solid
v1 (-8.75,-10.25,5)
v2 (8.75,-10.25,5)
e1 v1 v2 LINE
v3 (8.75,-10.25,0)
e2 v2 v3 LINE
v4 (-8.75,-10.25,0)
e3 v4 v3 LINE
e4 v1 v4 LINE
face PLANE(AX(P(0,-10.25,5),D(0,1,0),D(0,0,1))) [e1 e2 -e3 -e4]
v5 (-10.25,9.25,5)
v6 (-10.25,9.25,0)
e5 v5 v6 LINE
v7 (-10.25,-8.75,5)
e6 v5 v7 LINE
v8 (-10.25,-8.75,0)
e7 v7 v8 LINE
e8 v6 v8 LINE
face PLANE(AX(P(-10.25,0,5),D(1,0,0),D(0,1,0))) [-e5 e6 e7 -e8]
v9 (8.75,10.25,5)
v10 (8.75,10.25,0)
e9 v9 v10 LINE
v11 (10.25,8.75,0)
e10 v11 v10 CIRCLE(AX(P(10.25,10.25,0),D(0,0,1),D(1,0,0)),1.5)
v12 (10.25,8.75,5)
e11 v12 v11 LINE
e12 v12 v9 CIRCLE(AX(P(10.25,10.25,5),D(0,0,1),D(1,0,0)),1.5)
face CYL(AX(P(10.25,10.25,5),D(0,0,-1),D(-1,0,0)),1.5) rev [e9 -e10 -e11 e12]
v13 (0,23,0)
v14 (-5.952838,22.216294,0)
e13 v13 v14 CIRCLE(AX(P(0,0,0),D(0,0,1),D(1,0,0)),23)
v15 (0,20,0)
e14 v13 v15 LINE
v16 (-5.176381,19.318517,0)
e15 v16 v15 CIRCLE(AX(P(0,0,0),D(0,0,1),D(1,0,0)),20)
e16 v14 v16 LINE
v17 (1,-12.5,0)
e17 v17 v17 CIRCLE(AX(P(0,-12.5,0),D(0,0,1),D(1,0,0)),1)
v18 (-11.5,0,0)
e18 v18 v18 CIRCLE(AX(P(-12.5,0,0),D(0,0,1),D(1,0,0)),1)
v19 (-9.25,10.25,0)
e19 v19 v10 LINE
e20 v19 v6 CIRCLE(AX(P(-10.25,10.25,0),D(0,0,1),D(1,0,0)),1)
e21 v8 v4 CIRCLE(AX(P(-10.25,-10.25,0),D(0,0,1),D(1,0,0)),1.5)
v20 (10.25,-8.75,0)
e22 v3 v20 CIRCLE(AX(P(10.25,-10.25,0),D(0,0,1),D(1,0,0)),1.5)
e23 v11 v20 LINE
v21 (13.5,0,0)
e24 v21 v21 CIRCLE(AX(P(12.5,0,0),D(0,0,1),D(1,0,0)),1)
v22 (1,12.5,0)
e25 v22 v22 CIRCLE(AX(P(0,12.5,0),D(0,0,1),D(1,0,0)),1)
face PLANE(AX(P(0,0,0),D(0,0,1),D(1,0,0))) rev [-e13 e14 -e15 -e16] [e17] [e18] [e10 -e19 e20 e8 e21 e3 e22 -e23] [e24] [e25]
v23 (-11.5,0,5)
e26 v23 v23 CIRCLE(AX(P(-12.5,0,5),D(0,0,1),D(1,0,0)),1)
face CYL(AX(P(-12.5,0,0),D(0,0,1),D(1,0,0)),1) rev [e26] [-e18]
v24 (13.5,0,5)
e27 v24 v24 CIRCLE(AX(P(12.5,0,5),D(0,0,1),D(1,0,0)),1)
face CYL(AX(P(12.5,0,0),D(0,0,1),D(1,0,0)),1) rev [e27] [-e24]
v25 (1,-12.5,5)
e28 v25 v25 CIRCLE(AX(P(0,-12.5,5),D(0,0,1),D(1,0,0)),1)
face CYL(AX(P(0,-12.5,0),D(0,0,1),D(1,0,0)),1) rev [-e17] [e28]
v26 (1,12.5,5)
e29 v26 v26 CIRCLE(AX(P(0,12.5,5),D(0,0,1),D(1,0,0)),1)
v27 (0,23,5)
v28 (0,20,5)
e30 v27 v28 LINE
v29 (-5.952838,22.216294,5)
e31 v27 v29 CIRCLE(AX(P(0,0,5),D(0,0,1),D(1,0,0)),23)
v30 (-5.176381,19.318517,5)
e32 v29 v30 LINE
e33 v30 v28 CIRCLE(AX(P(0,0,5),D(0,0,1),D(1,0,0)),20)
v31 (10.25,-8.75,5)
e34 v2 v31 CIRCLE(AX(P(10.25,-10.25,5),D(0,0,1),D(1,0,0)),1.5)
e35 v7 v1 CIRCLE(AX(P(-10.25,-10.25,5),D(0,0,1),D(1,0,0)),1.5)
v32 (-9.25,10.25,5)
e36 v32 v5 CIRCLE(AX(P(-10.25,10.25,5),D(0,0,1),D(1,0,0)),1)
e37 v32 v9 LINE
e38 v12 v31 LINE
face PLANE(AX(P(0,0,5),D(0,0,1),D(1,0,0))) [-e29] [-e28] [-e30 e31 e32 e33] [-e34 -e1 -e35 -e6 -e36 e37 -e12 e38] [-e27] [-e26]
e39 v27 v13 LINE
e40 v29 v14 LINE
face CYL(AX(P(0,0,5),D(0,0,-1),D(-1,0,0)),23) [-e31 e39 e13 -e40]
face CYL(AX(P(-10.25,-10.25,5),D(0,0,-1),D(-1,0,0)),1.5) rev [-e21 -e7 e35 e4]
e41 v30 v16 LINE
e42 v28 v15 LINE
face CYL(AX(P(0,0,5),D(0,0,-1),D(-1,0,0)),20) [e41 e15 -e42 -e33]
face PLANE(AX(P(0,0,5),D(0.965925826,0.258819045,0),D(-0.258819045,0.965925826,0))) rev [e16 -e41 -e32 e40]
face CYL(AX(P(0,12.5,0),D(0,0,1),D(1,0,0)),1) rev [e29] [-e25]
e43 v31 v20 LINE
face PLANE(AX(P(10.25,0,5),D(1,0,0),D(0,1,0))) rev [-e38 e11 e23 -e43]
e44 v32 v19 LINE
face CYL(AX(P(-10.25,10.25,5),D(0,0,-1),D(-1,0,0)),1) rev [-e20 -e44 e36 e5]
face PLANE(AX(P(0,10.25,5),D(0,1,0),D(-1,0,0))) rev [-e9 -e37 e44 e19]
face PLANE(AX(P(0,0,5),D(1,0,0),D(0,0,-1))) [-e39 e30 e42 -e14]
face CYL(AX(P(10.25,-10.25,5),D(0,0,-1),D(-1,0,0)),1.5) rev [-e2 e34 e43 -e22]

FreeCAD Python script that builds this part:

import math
import FreeCAD as App
import Part
import Sketcher
from FreeCAD import Vector
Q = App.Units.Quantity

doc = App.newDocument("Part")
body = doc.addObject("PartDesign::Body", "Body")

sketch1 = body.newObject("Sketcher::SketchObject", "Sketch")
sketch1.AttachmentSupport = (doc.getObject("XY_Plane"), [""])
sketch1.MapMode = "FlatFace"
sketch1.addGeometry([
    Part.ArcOfCircle(Part.Circle(Vector(0, 0, 0), Vector(0, 0, 1), 23), math.radians(90), math.radians(105)),
    Part.LineSegment(Vector(-6, 22.2, 0), Vector(-5.2, 19.3, 0)),
    Part.ArcOfCircle(Part.Circle(Vector(0, 0, 0), Vector(0, 0, 1), 20), math.radians(105), math.radians(450)),
    Part.LineSegment(Vector(0, 20, 0), Vector(0, 23, 0)),
    Part.ArcOfCircle(Part.Circle(Vector(-10.2, 10.2, 0), Vector(0, 0, 1), 1), math.radians(0), math.radians(270)),
    Part.LineSegment(Vector(-9.2, 10.2, 0), Vector(8.8, 10.2, 0)),
    Part.ArcOfCircle(Part.Circle(Vector(10.2, 10.2, 0), Vector(0, 0, 1), 1.5), math.radians(-90), math.radians(180)),
    Part.LineSegment(Vector(10.2, 8.8, 0), Vector(10.2, -8.8, 0)),
    Part.ArcOfCircle(Part.Circle(Vector(10.2, -10.2, 0), Vector(0, 0, 1), 1.5), math.radians(180), math.radians(450)),
    Part.LineSegment(Vector(8.8, -10.2, 0), Vector(-8.8, -10.2, 0)),
    Part.ArcOfCircle(Part.Circle(Vector(-10.2, -10.2, 0), Vector(0, 0, 1), 1.5), math.radians(90), math.radians(360)),
    Part.LineSegment(Vector(-10.2, -8.8, 0), Vector(-10.2, 9.2, 0)),
], False)
sketch1.addConstraint([
    Sketcher.Constraint("Coincident", 0, 2, 1, 1),
    Sketcher.Constraint("Coincident", 1, 2, 2, 1),
    Sketcher.Constraint("Coincident", 2, 2, 3, 1),
    Sketcher.Constraint("Coincident", 3, 2, 0, 1),
    Sketcher.Constraint("Coincident", 4, 1, 5, 1),
    Sketcher.Constraint("Coincident", 5, 2, 6, 2),
    Sketcher.Constraint("Coincident", 6, 1, 7, 1),
    Sketcher.Constraint("Coincident", 7, 2, 8, 2),
    Sketcher.Constraint("Coincident", 8, 1, 9, 1),
    Sketcher.Constraint("Coincident", 9, 2, 10, 2),
    Sketcher.Constraint("Coincident", 10, 1, 11, 1),
    Sketcher.Constraint("Coincident", 11, 2, 4, 2),
    Sketcher.Constraint("Vertical", 3),
    Sketcher.Constraint("Horizontal", 5),
    Sketcher.Constraint("Vertical", 7),
    Sketcher.Constraint("Horizontal", 9),
    Sketcher.Constraint("Vertical", 11),
    Sketcher.Constraint("Coincident", 0, 3, -1, 1),
    Sketcher.Constraint("Coincident", 2, 3, -1, 1),
    Sketcher.Constraint("Equal", 6, 8),
    Sketcher.Constraint("Equal", 8, 10),
    Sketcher.Constraint("Symmetric", 4, 3, 8, 3, -1, 1),
    Sketcher.Constraint("Symmetric", 6, 3, 10, 3, -1, 1),
    Sketcher.Constraint("Symmetric", 4, 3, 6, 3, -2),
    Sketcher.Constraint("PointOnObject", 2, 2, -2),
    Sketcher.Constraint("Horizontal", 6, 3, 4, 1),
    Sketcher.Constraint("Horizontal", 10, 3, 8, 1),
    Sketcher.Constraint("Vertical", 8, 3, 6, 1),
    Sketcher.Constraint("Vertical", 4, 3, 10, 1),
    Sketcher.Constraint("Equal", 9, 7),
    Sketcher.Constraint("Radius", 0, Q("23 mm")),
    Sketcher.Constraint("Radius", 2, Q("20 mm")),
    Sketcher.Constraint("Radius", 4, Q("1 mm")),
    Sketcher.Constraint("Radius", 6, Q("1.5 mm")),
    Sketcher.Constraint("DistanceX", 5, 1, 5, 2, Q("18 mm")),
    Sketcher.Constraint("Angle", 1, Q("-75 deg")),
    Sketcher.Constraint("DistanceX", 0, 2, -1, 1, Q("5.952838 mm")),
])
pad1 = body.newObject("PartDesign::Pad", "Pad")
pad1.Profile = sketch1
pad1.Length = 5

sketch2 = body.newObject("Sketcher::SketchObject", "Sketch001")
sketch2.AttachmentSupport = (doc.getObject("XY_Plane"), [""])
sketch2.MapMode = "FlatFace"
sketch2.AttachmentOffset = App.Placement(Vector(0, 0, 5), App.Rotation())
sketch2.addGeometry([
    Part.Circle(Vector(0, 12.5, 0), Vector(0, 0, 1), 1),
    Part.Circle(Vector(12.5, 0, 0), Vector(0, 0, 1), 1),
    Part.Circle(Vector(0, -12.5, 0), Vector(0, 0, 1), 1),
    Part.Circle(Vector(-12.5, 0, 0), Vector(0, 0, 1), 1),
], False)
sketch2.addConstraint([
    Sketcher.Constraint("Equal", 0, 1),
    Sketcher.Constraint("Equal", 1, 2),
    Sketcher.Constraint("Equal", 2, 3),
    Sketcher.Constraint("Symmetric", 0, 3, 2, 3, -1, 1),
    Sketcher.Constraint("Symmetric", 1, 3, 3, 3, -1, 1),
    Sketcher.Constraint("PointOnObject", 0, 3, -2),
    Sketcher.Constraint("PointOnObject", 1, 3, -1),
    Sketcher.Constraint("Diameter", 0, Q("2 mm")),
    Sketcher.Constraint("DistanceY", 2, 3, 0, 3, Q("25 mm")),
    Sketcher.Constraint("DistanceX", 3, 3, 1, 3, Q("25 mm")),
])
pocket1 = body.newObject("PartDesign::Pocket", "Pocket")
pocket1.Profile = sketch2
pocket1.Length = 5

doc.recompute()
